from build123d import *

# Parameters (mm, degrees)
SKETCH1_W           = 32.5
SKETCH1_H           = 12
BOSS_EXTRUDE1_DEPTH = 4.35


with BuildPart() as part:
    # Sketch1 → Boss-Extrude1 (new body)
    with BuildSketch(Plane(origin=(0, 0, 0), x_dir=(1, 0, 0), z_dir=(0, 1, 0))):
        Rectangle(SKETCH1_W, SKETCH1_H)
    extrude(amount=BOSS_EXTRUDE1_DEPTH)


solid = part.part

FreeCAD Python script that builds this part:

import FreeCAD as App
import Part
import Sketcher

V = App.Vector

doc = App.newDocument("Part")
body = doc.addObject("PartDesign::Body", "Body")

sketch1 = body.newObject("Sketcher::SketchObject", "Sketch")
sketch1.AttachmentSupport = (doc.getObject("XZ_Plane"), [""])
sketch1.MapMode = "FlatFace"
sketch1.addGeometry([
    Part.LineSegment(V(-16, -6, 0), V(-16, 6, 0)),
    Part.LineSegment(V(-16, 6, 0), V(16, 6, 0)),
    Part.LineSegment(V(16, 6, 0), V(16, -6, 0)),
    Part.LineSegment(V(16, -6, 0), V(-16, -6, 0)),
], False)
sketch1.addConstraint([
    Sketcher.Constraint("Coincident", 0, 2, 1, 1),
    Sketcher.Constraint("Coincident", 1, 2, 2, 1),
    Sketcher.Constraint("Coincident", 2, 2, 3, 1),
    Sketcher.Constraint("Coincident", 3, 2, 0, 1),
    Sketcher.Constraint("Vertical", 0),
    Sketcher.Constraint("Horizontal", 1),
    Sketcher.Constraint("Vertical", 2),
    Sketcher.Constraint("Horizontal", 3),
    Sketcher.Constraint("Symmetric", 0, 2, 2, 2, -1, 1),
    Sketcher.Constraint("DistanceY", 0, 1, 0, 2, 12.0),
    Sketcher.Constraint("DistanceX", 1, 1, 1, 2, 32.5),
])
pad1 = body.newObject("PartDesign::Pad", "Pad")
pad1.Profile = sketch1
pad1.Length = 4.35
pad1.Reversed = True

doc.recompute()
